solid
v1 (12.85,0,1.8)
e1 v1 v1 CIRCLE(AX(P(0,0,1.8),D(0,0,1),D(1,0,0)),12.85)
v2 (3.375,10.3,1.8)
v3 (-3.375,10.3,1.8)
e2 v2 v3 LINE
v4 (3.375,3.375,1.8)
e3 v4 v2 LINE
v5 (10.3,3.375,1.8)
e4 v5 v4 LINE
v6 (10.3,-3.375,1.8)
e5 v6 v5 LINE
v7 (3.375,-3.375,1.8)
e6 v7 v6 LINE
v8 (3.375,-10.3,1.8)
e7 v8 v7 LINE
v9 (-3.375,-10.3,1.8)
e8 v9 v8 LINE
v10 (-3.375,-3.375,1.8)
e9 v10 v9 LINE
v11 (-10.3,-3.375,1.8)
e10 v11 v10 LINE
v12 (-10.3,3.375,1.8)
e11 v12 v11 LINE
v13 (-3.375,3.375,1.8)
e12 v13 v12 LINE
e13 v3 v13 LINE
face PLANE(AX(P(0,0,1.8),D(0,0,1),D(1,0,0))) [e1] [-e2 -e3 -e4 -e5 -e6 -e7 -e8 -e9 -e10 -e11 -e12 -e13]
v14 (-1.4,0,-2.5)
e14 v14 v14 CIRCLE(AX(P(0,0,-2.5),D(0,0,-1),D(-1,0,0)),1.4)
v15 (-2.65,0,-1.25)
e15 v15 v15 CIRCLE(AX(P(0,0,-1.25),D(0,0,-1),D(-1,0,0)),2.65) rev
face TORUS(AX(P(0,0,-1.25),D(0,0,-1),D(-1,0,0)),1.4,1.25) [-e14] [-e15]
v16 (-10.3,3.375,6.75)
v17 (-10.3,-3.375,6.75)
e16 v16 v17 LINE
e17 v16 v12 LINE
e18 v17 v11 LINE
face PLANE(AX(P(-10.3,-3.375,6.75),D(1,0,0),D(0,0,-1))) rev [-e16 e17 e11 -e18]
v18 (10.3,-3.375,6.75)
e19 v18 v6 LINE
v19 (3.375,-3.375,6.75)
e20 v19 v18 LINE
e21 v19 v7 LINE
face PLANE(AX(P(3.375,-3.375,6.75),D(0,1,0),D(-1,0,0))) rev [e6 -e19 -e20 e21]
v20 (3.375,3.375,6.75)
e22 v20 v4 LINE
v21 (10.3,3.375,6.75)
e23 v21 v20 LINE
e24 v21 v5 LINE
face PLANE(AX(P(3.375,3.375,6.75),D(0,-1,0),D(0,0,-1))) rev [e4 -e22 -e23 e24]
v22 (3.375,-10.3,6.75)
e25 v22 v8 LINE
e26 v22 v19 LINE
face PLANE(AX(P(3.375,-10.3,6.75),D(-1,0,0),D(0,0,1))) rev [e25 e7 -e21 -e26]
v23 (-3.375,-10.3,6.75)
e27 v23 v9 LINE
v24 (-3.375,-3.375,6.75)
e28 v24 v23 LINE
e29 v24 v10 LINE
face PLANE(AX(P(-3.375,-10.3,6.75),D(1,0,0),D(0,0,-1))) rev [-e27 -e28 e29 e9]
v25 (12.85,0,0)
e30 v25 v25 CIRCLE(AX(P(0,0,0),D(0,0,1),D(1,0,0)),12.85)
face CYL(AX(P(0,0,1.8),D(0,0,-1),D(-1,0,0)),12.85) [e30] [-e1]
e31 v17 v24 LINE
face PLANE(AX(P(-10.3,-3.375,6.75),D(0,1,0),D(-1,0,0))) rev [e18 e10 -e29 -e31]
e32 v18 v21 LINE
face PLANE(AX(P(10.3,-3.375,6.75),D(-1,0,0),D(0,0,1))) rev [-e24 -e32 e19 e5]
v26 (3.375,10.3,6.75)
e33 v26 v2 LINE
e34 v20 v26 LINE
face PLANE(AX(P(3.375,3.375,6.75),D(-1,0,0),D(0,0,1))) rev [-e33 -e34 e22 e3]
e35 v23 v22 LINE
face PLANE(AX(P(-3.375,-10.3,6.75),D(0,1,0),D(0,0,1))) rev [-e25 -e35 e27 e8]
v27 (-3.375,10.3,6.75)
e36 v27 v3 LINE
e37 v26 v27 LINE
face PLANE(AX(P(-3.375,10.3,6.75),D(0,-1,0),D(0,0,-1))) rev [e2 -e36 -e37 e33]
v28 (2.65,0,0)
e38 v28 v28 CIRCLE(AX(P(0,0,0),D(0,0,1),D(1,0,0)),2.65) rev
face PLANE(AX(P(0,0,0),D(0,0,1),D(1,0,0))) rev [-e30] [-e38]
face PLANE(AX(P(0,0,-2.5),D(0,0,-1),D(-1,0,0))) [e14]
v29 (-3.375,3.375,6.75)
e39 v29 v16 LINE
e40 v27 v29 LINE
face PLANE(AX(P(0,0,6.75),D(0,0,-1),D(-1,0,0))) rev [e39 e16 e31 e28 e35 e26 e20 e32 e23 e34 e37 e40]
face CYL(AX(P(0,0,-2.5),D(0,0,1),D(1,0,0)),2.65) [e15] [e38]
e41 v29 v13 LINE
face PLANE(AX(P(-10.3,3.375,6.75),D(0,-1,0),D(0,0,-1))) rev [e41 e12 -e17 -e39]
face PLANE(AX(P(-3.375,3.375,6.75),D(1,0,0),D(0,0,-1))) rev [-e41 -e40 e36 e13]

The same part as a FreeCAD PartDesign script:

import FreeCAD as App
import Part
import Sketcher

V = App.Vector
Q = App.Units.Quantity


def edges_at(feature, points):
    """Names of the edges that pass closest to the given points."""
    edges = feature.Shape.Edges
    near = lambda p: min(range(len(edges)), key=lambda i: edges[i].distToShape(Part.Vertex(*p))[0])
    return sorted({f"Edge{near(p) + 1}" for p in points})

doc = App.newDocument("Part")
body = doc.addObject("PartDesign::Body", "Body")

# Sketch on XY plane
sketch1 = body.newObject("Sketcher::SketchObject", "Sketch")
sketch1.AttachmentSupport = (doc.getObject("XY_Plane"), [""])
sketch1.MapMode = "FlatFace"
sketch1.addGeometry(Part.Circle(V(0, 0, 0), V(0, 0, 1), 13), False)
sketch1.addConstraint(Sketcher.Constraint("Coincident", 0, 3, -1, 1))
sketch1.addConstraint(Sketcher.Constraint("Diameter", 0, Q("25.7 mm")))
pad1 = body.newObject("PartDesign::Pad", "Pad")
pad1.Profile = sketch1
pad1.Length = 1.8

# Sketch on XY plane
sketch2 = body.newObject("Sketcher::SketchObject", "Sketch001")
sketch2.AttachmentSupport = (doc.getObject("XY_Plane"), [""])
sketch2.MapMode = "FlatFace"
sketch2.AttachmentOffset = App.Placement(V(0, 0, 1.8), App.Rotation())
sketch2.addGeometry(Part.LineSegment(V(10, 3, 0), V(3, 3, 0)), False)
sketch2.addGeometry(Part.LineSegment(V(3, 3, 0), V(3, 10, 0)), False)
sketch2.addGeometry(Part.LineSegment(V(3, 10, 0), V(-3, 10, 0)), False)
sketch2.addGeometry(Part.LineSegment(V(-3, 10, 0), V(-3, 3, 0)), False)
sketch2.addGeometry(Part.LineSegment(V(-3, 3, 0), V(-10, 3, 0)), False)
sketch2.addGeometry(Part.LineSegment(V(-10, 3, 0), V(-10, -3, 0)), False)
sketch2.addGeometry(Part.LineSegment(V(-10, -3, 0), V(-3, -3, 0)), False)
sketch2.addGeometry(Part.LineSegment(V(-3, -3, 0), V(-3, -10, 0)), False)
sketch2.addGeometry(Part.LineSegment(V(-3, -10, 0), V(3, -10, 0)), False)
sketch2.addGeometry(Part.LineSegment(V(3, -10, 0), V(3, -3, 0)), False)
sketch2.addGeometry(Part.LineSegment(V(3, -3, 0), V(10, -3, 0)), False)
sketch2.addGeometry(Part.LineSegment(V(10, -3, 0), V(10, 3, 0)), False)
sketch2.addConstraint(Sketcher.Constraint("Coincident", 0, 2, 1, 1))
sketch2.addConstraint(Sketcher.Constraint("Coincident", 1, 2, 2, 1))
sketch2.addConstraint(Sketcher.Constraint("Coincident", 2, 2, 3, 1))
sketch2.addConstraint(Sketcher.Constraint("Coincident", 3, 2, 4, 1))
sketch2.addConstraint(Sketcher.Constraint("Coincident", 4, 2, 5, 1))
sketch2.addConstraint(Sketcher.Constraint("Coincident", 5, 2, 6, 1))
sketch2.addConstraint(Sketcher.Constraint("Coincident", 6, 2, 7, 1))
sketch2.addConstraint(Sketcher.Constraint("Coincident", 7, 2, 8, 1))
sketch2.addConstraint(Sketcher.Constraint("Coincident", 8, 2, 9, 1))
sketch2.addConstraint(Sketcher.Constraint("Coincident", 9, 2, 10, 1))
sketch2.addConstraint(Sketcher.Constraint("Coincident", 10, 2, 11, 1))
sketch2.addConstraint(Sketcher.Constraint("Coincident", 11, 2, 0, 1))
sketch2.addConstraint(Sketcher.Constraint("Horizontal", 0))
sketch2.addConstraint(Sketcher.Constraint("Vertical", 1))
sketch2.addConstraint(Sketcher.Constraint("Horizontal", 2))
sketch2.addConstraint(Sketcher.Constraint("Vertical", 3))
sketch2.addConstraint(Sketcher.Constraint("Horizontal", 4))
sketch2.addConstraint(Sketcher.Constraint("Vertical", 5))
sketch2.addConstraint(Sketcher.Constraint("Horizontal", 6))
sketch2.addConstraint(Sketcher.Constraint("Vertical", 7))
sketch2.addConstraint(Sketcher.Constraint("Horizontal", 8))
sketch2.addConstraint(Sketcher.Constraint("Vertical", 9))
sketch2.addConstraint(Sketcher.Constraint("Horizontal", 10))
sketch2.addConstraint(Sketcher.Constraint("Vertical", 11))
sketch2.addConstraint(Sketcher.Constraint("Symmetric", 0, 2, 6, 2, -1, 1))
sketch2.addConstraint(Sketcher.Constraint("Symmetric", 2, 2, 8, 2, -1, 1))
sketch2.addConstraint(Sketcher.Constraint("Symmetric", 4, 2, 10, 2, -1, 1))
sketch2.addConstraint(Sketcher.Constraint("Symmetric", 0, 2, 3, 2, -2))
sketch2.addConstraint(Sketcher.Constraint("Equal", 10, 1))
sketch2.addConstraint(Sketcher.Constraint("Equal", 8, 5))
sketch2.addConstraint(Sketcher.Constraint("DistanceX", 2, 2, 2, 1, Q("6.75 mm")))
sketch2.addConstraint(Sketcher.Constraint("DistanceY", -1, 1, 1, 2, Q("10.3 mm")))
pad2 = body.newObject("PartDesign::Pad", "Pad001")
pad2.Profile = sketch2
pad2.Length = 4.95

# Sketch on XY plane
sketch3 = body.newObject("Sketcher::SketchObject", "Sketch002")
sketch3.AttachmentSupport = (doc.getObject("XY_Plane"), [""])
sketch3.MapMode = "FlatFace"
sketch3.addGeometry(Part.Circle(V(0, 0, 0), V(0, 0, 1), 2.6), False)
sketch3.addConstraint(Sketcher.Constraint("Coincident", 0, 3, -1, 1))
sketch3.addConstraint(Sketcher.Constraint("Diameter", 0, Q("5.3 mm")))
pad3 = body.newObject("PartDesign::Pad", "Pad002")
pad3.Profile = sketch3
pad3.Length = 2.5
pad3.Reversed = True
doc.recompute()

fillet = body.newObject("PartDesign::Fillet", "Fillet")
fillet.Base = (pad3, edges_at(pad3, [(-2.65, 0, -2.5)]))
fillet.Radius = 1.25

doc.recompute()
